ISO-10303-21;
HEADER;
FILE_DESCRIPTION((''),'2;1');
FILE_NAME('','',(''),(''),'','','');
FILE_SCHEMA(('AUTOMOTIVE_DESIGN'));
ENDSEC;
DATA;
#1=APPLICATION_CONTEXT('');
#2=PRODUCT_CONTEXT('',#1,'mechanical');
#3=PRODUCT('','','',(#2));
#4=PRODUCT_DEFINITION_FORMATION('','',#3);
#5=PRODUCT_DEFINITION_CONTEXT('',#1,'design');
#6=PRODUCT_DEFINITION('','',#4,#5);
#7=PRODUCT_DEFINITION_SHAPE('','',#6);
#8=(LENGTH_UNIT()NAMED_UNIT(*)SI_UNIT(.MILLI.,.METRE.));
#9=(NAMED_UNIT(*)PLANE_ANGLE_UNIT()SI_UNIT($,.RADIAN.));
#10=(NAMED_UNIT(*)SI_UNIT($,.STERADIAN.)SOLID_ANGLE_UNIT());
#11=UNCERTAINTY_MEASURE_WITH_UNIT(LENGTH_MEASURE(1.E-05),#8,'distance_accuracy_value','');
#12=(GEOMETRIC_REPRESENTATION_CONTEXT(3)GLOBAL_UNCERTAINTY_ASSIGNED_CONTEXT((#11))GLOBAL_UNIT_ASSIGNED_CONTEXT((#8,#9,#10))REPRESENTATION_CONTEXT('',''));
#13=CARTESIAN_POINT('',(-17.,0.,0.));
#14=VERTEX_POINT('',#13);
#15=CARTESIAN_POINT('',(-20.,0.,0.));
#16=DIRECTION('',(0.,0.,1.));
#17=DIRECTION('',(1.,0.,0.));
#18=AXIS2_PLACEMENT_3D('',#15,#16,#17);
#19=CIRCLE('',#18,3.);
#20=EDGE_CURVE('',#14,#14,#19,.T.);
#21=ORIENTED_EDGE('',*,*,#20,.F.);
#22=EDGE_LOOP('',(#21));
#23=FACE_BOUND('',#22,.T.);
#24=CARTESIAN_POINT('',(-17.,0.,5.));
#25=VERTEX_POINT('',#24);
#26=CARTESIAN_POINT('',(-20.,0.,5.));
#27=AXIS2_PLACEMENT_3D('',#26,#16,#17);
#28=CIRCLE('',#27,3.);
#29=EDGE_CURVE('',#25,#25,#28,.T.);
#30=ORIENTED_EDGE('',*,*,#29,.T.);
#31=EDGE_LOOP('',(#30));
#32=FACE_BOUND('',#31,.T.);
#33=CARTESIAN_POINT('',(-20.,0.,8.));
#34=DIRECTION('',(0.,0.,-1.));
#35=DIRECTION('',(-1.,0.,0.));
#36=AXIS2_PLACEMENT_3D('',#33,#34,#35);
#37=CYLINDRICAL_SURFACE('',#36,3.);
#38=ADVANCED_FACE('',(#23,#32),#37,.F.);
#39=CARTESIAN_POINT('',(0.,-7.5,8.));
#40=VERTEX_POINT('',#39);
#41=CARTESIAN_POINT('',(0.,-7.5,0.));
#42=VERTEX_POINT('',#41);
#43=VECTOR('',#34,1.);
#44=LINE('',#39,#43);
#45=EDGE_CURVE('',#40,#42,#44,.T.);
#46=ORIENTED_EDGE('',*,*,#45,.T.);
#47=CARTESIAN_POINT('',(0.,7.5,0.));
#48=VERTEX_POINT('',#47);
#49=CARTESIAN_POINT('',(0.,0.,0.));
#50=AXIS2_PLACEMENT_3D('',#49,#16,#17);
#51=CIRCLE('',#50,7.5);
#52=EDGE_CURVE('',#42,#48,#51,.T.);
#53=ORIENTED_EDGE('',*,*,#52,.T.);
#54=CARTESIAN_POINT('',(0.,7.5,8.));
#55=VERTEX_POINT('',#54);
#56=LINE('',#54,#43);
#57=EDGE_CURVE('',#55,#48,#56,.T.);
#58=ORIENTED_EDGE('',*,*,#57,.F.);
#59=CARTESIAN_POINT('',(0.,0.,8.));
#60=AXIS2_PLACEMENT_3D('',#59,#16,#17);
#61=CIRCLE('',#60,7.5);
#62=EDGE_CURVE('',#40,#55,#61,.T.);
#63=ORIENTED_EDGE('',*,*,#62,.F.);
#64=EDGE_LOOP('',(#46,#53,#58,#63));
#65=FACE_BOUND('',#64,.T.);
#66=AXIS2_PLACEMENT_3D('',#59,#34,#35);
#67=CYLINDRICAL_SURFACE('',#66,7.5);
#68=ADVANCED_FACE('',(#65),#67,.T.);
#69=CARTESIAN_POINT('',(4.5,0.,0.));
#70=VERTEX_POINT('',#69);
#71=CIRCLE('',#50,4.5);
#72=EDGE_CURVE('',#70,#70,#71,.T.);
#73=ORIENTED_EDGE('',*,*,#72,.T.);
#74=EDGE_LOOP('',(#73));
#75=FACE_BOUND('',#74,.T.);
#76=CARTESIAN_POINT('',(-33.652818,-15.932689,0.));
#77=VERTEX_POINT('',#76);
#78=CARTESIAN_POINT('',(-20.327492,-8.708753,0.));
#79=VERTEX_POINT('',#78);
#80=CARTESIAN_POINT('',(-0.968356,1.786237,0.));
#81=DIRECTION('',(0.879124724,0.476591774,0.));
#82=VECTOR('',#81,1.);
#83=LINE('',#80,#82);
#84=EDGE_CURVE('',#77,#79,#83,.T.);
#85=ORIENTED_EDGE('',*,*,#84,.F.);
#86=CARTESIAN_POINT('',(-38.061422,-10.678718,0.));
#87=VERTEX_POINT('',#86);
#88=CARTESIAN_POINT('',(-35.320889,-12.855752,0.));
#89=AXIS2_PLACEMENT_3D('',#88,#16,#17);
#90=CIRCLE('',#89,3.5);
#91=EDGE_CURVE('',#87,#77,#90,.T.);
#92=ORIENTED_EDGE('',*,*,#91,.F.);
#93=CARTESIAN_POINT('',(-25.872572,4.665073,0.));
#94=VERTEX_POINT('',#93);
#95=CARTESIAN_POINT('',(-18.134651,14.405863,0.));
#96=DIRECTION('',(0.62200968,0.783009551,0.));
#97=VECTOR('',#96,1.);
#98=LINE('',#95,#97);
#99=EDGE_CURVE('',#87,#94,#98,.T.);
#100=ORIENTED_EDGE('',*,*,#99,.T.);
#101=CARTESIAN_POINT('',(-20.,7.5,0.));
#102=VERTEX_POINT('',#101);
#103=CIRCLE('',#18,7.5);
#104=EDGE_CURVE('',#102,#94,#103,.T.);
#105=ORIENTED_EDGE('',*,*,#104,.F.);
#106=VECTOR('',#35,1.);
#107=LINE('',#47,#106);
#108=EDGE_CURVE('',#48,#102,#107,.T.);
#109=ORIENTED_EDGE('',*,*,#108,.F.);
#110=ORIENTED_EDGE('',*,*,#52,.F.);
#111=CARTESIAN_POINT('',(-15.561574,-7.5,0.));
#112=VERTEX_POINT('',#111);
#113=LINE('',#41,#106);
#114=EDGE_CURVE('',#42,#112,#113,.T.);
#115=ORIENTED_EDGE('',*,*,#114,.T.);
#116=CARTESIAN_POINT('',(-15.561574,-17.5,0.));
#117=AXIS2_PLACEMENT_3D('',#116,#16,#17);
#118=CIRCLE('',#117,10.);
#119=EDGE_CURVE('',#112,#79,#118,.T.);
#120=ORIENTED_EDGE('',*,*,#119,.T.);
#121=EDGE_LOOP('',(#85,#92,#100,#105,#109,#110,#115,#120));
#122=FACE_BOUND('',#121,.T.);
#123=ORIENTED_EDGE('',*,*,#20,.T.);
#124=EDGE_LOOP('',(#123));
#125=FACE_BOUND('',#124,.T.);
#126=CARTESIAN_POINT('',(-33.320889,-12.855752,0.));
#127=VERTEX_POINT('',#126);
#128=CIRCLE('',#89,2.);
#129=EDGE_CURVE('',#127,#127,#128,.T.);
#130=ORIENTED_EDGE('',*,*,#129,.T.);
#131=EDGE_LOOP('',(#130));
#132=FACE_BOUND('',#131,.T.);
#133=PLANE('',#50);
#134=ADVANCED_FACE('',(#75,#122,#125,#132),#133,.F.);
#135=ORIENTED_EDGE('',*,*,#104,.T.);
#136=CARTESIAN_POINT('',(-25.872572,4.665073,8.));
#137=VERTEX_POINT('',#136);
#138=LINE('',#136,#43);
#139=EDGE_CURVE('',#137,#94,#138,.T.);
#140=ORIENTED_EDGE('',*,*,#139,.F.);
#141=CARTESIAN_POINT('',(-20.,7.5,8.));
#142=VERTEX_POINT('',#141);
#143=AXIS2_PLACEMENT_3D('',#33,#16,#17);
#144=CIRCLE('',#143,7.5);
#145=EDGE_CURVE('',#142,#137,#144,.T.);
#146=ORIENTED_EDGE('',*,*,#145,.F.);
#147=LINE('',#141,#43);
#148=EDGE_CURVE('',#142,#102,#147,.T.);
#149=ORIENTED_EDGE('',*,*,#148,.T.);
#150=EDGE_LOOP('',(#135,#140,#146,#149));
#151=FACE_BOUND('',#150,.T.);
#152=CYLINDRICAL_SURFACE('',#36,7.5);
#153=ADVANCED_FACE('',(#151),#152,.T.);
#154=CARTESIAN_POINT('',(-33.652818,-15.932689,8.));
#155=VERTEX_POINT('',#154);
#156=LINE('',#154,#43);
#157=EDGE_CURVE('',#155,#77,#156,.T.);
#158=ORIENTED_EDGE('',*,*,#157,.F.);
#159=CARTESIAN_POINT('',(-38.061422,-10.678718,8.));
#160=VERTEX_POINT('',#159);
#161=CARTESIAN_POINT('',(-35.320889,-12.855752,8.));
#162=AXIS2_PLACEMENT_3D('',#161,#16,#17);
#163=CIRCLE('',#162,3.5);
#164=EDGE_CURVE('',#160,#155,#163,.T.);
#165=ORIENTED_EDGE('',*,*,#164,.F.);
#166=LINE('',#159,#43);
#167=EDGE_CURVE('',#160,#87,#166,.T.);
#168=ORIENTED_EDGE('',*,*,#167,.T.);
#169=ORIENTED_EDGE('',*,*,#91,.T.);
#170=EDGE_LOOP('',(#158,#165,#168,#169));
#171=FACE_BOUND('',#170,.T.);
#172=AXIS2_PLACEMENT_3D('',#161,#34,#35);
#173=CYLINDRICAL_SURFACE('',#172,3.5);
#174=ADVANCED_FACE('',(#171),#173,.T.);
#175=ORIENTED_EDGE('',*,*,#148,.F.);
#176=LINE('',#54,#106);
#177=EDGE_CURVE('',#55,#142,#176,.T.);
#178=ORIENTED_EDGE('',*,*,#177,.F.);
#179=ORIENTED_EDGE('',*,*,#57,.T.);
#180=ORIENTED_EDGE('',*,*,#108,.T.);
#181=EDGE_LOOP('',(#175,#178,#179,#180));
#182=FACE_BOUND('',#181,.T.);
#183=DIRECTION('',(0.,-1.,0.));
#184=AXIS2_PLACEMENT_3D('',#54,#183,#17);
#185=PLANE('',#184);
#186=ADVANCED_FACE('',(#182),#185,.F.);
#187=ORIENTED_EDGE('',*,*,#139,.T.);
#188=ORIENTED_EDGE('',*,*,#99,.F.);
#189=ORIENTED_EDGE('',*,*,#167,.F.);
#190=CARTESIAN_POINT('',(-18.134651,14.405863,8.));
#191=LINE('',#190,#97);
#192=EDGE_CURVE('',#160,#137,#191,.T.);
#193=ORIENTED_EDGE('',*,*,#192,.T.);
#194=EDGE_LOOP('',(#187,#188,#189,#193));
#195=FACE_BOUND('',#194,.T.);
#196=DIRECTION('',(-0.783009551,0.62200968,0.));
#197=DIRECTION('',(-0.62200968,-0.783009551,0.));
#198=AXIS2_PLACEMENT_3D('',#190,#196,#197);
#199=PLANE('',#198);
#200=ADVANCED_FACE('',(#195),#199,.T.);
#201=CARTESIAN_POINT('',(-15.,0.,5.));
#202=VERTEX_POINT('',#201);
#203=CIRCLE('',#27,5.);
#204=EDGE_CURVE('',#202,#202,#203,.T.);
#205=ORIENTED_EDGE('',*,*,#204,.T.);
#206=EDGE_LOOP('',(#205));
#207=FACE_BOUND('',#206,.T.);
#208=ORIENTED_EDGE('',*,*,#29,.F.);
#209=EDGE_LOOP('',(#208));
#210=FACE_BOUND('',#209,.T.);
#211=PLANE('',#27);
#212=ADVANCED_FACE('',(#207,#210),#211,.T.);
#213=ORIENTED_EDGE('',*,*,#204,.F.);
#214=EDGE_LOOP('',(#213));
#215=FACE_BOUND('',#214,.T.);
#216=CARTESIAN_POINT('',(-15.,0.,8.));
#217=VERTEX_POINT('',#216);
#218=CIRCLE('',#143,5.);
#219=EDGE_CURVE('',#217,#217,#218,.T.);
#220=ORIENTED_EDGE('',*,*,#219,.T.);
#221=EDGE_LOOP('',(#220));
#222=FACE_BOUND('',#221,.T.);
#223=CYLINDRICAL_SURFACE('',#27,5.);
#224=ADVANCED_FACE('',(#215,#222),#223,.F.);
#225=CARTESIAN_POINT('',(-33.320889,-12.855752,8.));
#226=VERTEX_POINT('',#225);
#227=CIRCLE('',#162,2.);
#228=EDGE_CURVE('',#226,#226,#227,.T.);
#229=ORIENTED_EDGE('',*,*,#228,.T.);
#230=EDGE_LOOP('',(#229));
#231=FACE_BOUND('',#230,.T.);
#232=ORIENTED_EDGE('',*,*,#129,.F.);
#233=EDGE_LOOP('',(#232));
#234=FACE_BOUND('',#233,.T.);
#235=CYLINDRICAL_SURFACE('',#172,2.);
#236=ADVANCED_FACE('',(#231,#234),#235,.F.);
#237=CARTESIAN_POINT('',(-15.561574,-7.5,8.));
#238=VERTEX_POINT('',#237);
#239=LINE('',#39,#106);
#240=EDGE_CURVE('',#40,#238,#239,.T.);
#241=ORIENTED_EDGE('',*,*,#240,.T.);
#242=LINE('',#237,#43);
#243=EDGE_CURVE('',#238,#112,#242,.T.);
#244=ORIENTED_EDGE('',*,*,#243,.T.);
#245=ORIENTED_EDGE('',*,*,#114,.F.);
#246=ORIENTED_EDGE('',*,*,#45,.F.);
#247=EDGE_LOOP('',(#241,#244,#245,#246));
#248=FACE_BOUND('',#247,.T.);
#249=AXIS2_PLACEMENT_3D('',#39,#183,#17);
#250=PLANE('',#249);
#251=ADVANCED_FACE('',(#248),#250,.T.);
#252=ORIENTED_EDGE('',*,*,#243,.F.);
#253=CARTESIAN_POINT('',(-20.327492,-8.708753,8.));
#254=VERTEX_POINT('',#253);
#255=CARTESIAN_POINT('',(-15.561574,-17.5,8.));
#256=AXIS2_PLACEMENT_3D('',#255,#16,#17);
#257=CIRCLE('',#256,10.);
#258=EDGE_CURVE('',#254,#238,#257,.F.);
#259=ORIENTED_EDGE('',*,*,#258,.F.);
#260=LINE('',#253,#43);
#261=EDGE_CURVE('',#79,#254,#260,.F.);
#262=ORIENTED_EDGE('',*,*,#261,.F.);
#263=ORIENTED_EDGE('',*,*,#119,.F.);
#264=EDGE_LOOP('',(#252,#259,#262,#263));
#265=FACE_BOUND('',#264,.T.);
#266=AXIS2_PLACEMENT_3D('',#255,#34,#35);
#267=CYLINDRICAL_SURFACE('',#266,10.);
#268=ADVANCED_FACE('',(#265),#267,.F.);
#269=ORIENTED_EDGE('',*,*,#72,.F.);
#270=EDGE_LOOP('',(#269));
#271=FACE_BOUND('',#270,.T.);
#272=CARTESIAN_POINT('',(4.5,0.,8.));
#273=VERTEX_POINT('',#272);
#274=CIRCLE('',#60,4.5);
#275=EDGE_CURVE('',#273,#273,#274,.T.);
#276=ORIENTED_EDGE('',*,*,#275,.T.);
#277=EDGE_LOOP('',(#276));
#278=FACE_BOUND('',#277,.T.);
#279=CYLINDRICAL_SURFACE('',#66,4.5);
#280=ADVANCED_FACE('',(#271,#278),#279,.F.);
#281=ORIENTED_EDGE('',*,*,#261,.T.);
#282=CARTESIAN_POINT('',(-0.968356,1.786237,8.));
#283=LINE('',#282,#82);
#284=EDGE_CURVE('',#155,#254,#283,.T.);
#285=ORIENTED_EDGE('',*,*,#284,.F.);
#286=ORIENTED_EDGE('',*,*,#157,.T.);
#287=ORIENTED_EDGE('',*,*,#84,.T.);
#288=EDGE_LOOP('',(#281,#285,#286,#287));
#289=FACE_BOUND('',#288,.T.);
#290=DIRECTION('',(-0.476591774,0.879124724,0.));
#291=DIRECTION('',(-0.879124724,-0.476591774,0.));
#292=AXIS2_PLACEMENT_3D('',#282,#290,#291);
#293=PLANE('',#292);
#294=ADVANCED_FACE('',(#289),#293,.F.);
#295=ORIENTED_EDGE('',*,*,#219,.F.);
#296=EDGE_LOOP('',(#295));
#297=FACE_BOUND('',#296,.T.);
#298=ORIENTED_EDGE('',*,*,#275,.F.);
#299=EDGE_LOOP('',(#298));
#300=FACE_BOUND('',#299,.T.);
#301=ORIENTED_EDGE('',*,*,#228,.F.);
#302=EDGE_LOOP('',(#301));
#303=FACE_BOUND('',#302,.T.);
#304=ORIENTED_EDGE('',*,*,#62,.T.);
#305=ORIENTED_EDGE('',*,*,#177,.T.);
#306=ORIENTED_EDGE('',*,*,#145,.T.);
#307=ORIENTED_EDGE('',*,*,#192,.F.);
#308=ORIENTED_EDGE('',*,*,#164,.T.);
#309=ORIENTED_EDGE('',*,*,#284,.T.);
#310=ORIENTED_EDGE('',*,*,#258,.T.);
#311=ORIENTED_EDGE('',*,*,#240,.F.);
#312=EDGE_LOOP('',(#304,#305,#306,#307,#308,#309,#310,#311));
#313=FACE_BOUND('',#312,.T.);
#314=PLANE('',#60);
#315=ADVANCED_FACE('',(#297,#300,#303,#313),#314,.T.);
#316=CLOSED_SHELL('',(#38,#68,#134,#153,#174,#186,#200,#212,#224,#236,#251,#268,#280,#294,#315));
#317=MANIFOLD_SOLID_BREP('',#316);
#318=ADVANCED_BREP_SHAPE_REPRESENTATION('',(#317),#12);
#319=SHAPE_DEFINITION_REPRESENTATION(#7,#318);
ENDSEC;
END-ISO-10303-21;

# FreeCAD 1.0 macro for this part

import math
import FreeCAD as App
import Part
import Sketcher
from FreeCAD import Vector
Q = App.Units.Quantity


def edges_at(feature, points):
    """Names of the edges that pass closest to the given points."""
    edges = feature.Shape.Edges
    near = lambda p: min(range(len(edges)), key=lambda i: edges[i].distToShape(Part.Vertex(*p))[0])
    return sorted({f"Edge{near(p) + 1}" for p in points})

doc = App.newDocument("Part")
body = doc.addObject("PartDesign::Body", "Body")

# Sketch on XY plane
sketch1 = body.newObject("Sketcher::SketchObject", "Sketch")
sketch1.AttachmentSupport = (doc.getObject("XY_Plane"), [""])
sketch1.MapMode = "FlatFace"
sketch1.addGeometry([
    Part.ArcOfCircle(Part.Circle(Vector(-35.320889, -12.855752, 0), Vector(0, 0, 1), 3.5), math.radians(141.536959), math.radians(298.463041)),  # 0
    Part.LineSegment(Vector(-33.652818, -15.932689, 0), Vector(-18.097817, -7.5, 0)),  # 1
    Part.LineSegment(Vector(-18.097817, -7.5, 0), Vector(0, -7.5, 0)),  # 2
    Part.ArcOfCircle(Part.Circle(Vector(0, 0, 0), Vector(0, 0, 1), 7.5), math.radians(-90), math.radians(90)),  # 3
    Part.LineSegment(Vector(0, 7.5, 0), Vector(-20, 7.5, 0)),  # 4
    Part.ArcOfCircle(Part.Circle(Vector(-20, 0, 0), Vector(0, 0, 1), 7.5), math.radians(90), math.radians(141.536959)),  # 5
    Part.LineSegment(Vector(-25.872572, 4.665073, 0), Vector(-38.061422, -10.678718, 0)),  # 6
    Part.Circle(Vector(-35.320889, -12.855752, 0), Vector(0, 0, 1), 2),  # 7
    Part.Circle(Vector(-20, 0, 0), Vector(0, 0, 1), 3),  # 8
    Part.Circle(Vector(0, 0, 0), Vector(0, 0, 1), 4.5),  # 9
], False)
sketch1.addConstraint([
    Sketcher.Constraint("Tangent", 0, 2, 1, 1),
    Sketcher.Constraint("Coincident", 1, 2, 2, 1),
    Sketcher.Constraint("Tangent", 2, 2, 3, 1),
    Sketcher.Constraint("Tangent", 3, 2, 4, 1),
    Sketcher.Constraint("Tangent", 4, 2, 5, 1),
    Sketcher.Constraint("Tangent", 5, 2, 6, 1),
    Sketcher.Constraint("Tangent", 6, 2, 0, 1),
    Sketcher.Constraint("Horizontal", 2),
    Sketcher.Constraint("Horizontal", 4),
    Sketcher.Constraint("Coincident", 3, 3, -1, 1),
    Sketcher.Constraint("Coincident", 9, 3, -1, 1),
    Sketcher.Constraint("Coincident", 7, 3, 0, 3),
    Sketcher.Constraint("Coincident", 8, 3, 5, 3),
    Sketcher.Constraint("Equal", 3, 5),
    Sketcher.Constraint("Diameter", 7, Q("4 mm")),
    Sketcher.Constraint("Diameter", 8, Q("6 mm")),
    Sketcher.Constraint("Diameter", 9, Q("9 mm")),
    Sketcher.Constraint("Radius", 0, Q("3.5 mm")),
    Sketcher.Constraint("Radius", 3, Q("7.5 mm")),
    Sketcher.Constraint("DistanceX", 4, 2, 4, 1, Q("20 mm")),
    Sketcher.Constraint("DistanceX", 0, 2, 1, 2, Q("15.555 mm")),
    Sketcher.Constraint("DistanceX", 2, 1, 2, 2, Q("18.097817 mm")),
    Sketcher.Constraint("DistanceX", 0, 3, -1, 1, Q("35.320889 mm")),
])
pad1 = body.newObject("PartDesign::Pad", "Pad")
pad1.Profile = sketch1
pad1.Length = 8
doc.recompute()

fillet = body.newObject("PartDesign::Fillet", "Fillet")
fillet.Base = (pad1, edges_at(pad1, [(-18.098, -7.5, 4)]))
fillet.Radius = 10

# Sketch on XY plane
sketch2 = body.newObject("Sketcher::SketchObject", "Sketch001")
sketch2.AttachmentSupport = (doc.getObject("XY_Plane"), [""])
sketch2.MapMode = "FlatFace"
sketch2.AttachmentOffset = App.Placement(Vector(0, 0, 8), App.Rotation())
sketch2.addGeometry(Part.Circle(Vector(-20, 0, 0), Vector(0, 0, 1), 5), False)
sketch2.addConstraint([
    Sketcher.Constraint("PointOnObject", 0, 3, -1),
    Sketcher.Constraint("Diameter", 0, Q("10 mm")),
    Sketcher.Constraint("DistanceX", 0, 3, -1, 1, Q("20 mm")),
])
pocket1 = body.newObject("PartDesign::Pocket", "Pocket")
pocket1.Profile = sketch2
pocket1.Length = 3

doc.recompute()
